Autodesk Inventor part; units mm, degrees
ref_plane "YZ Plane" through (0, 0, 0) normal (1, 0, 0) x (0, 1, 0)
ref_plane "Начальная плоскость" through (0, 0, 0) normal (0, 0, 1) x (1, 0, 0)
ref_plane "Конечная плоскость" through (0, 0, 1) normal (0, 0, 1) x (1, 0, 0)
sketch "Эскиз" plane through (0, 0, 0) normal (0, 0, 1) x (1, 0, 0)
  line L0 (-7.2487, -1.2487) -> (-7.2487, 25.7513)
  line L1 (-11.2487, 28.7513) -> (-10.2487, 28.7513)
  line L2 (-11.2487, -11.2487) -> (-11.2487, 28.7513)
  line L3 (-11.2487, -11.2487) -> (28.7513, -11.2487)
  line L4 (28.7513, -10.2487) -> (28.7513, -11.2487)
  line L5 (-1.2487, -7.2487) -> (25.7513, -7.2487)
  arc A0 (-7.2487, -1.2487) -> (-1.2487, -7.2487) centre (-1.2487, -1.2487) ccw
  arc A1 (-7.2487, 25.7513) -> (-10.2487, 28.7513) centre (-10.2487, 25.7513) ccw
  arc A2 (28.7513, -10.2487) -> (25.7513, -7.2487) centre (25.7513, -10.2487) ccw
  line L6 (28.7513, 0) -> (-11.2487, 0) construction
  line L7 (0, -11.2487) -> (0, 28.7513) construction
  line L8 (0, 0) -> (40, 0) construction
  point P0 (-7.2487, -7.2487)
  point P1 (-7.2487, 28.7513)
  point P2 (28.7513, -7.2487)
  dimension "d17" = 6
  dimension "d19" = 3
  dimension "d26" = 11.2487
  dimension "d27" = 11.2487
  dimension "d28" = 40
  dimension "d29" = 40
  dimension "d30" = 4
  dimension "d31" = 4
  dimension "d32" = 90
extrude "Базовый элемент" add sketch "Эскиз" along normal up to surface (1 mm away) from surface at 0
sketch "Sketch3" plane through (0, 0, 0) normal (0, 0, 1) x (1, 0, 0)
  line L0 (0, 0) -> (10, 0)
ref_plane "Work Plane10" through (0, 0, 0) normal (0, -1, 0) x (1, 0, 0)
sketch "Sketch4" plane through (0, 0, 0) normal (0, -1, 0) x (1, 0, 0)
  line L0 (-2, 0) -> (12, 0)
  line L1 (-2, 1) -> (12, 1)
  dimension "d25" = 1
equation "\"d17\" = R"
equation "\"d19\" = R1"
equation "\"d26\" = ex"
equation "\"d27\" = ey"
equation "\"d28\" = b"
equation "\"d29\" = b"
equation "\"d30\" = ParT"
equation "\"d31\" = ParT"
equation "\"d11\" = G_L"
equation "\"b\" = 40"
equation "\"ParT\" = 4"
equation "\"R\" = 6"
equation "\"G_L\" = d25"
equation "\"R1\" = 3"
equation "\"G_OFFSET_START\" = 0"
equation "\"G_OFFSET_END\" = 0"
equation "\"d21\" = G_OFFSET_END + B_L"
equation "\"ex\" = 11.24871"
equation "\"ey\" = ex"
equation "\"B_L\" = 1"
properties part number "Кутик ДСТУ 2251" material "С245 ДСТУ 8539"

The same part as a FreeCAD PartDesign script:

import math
import FreeCAD as App
import Part
import Sketcher

doc = App.newDocument("Part")
params = doc.addObject("Spreadsheet::Sheet", "Params")
for row, (alias, value) in enumerate([
    ("sketch1_radius", "6 mm"),
    ("sketch1_radius2", "3 mm"),
    ("sketch1_width", "40 mm"),
    ("pad1_length", "1 mm"),
], start=1):
    params.set(f"A{row}", alias)
    params.set(f"B{row}", "=" + value)
    params.setAlias(f"B{row}", alias)

body = doc.addObject("PartDesign::Body", "Body")

# Sketch on XY plane
sketch1 = body.newObject("Sketcher::SketchObject", "Sketch")
sketch1.AttachmentSupport = (doc.getObject("XY_Plane"), [""])
sketch1.MapMode = "FlatFace"
sketch1.addGeometry(Part.ArcOfCircle(Part.Circle(App.Vector(-1.2487, -1.2487, 0), App.Vector(0, 0, 1), 6), math.radians(180), math.radians(270)), False)
sketch1.addGeometry(Part.LineSegment(App.Vector(-7.2487, -1.2487, 0), App.Vector(-7.2487, 25.7513, 0)), False)
sketch1.addGeometry(Part.ArcOfCircle(Part.Circle(App.Vector(-10.2487, 25.7513, 0), App.Vector(0, 0, 1), 3), math.radians(0), math.radians(90)), False)
sketch1.addGeometry(Part.LineSegment(App.Vector(-10.2487, 28.7513, 0), App.Vector(-11.2487, 28.7513, 0)), False)
sketch1.addGeometry(Part.LineSegment(App.Vector(-11.2487, 28.7513, 0), App.Vector(-11.2487, -11.2487, 0)), False)
sketch1.addGeometry(Part.LineSegment(App.Vector(-11.2487, -11.2487, 0), App.Vector(28.7513, -11.2487, 0)), False)
sketch1.addGeometry(Part.LineSegment(App.Vector(28.7513, -11.2487, 0), App.Vector(28.7513, -10.2487, 0)), False)
sketch1.addGeometry(Part.ArcOfCircle(Part.Circle(App.Vector(25.7513, -10.2487, 0), App.Vector(0, 0, 1), 3), math.radians(0), math.radians(90)), False)
sketch1.addGeometry(Part.LineSegment(App.Vector(25.7513, -7.2487, 0), App.Vector(-1.2487, -7.2487, 0)), False)
sketch1.addConstraint(Sketcher.Constraint("Tangent", 0, 1, 1, 1))
sketch1.addConstraint(Sketcher.Constraint("Tangent", 1, 2, 2, 1))
sketch1.addConstraint(Sketcher.Constraint("Tangent", 2, 2, 3, 1))
sketch1.addConstraint(Sketcher.Constraint("Coincident", 3, 2, 4, 1))
sketch1.addConstraint(Sketcher.Constraint("Coincident", 4, 2, 5, 1))
sketch1.addConstraint(Sketcher.Constraint("Coincident", 5, 2, 6, 1))
sketch1.addConstraint(Sketcher.Constraint("Tangent", 6, 2, 7, 1))
sketch1.addConstraint(Sketcher.Constraint("Tangent", 7, 2, 8, 1))
sketch1.addConstraint(Sketcher.Constraint("Tangent", 8, 2, 0, 2))
sketch1.addConstraint(Sketcher.Constraint("Vertical", 1))
sketch1.addConstraint(Sketcher.Constraint("Horizontal", 3))
sketch1.addConstraint(Sketcher.Constraint("Vertical", 4))
sketch1.addConstraint(Sketcher.Constraint("Horizontal", 5))
sketch1.addConstraint(Sketcher.Constraint("Vertical", 6))
sketch1.addConstraint(Sketcher.Constraint("Horizontal", 8))
sketch1.addConstraint(Sketcher.Constraint("Equal", 2, 7))
sketch1.addConstraint(Sketcher.Constraint("Equal", 8, 1))
sketch1.addConstraint(Sketcher.Constraint("Equal", 5, 4))
sketch1.addConstraint(Sketcher.Constraint("Radius", 0, 6.0))
sketch1.addConstraint(Sketcher.Constraint("Radius", 2, 3.0))
sketch1.addConstraint(Sketcher.Constraint("DistanceX", 5, 1, 5, 2, 40.0))
sketch1.addConstraint(Sketcher.Constraint("DistanceX", 3, 2, 1, 2, 4.0))
sketch1.addConstraint(Sketcher.Constraint("DistanceX", 3, 2, -1, 1, 11.2487))
sketch1.addConstraint(Sketcher.Constraint("DistanceY", 4, 2, -1, 1, 11.2487))
sketch1.setExpression("Constraints[18]", "Params.sketch1_radius")
sketch1.setExpression("Constraints[19]", "Params.sketch1_radius2")
sketch1.setExpression("Constraints[20]", "Params.sketch1_width")
pad1 = body.newObject("PartDesign::Pad", "Pad")
pad1.Profile = sketch1
pad1.setExpression("Length", "Params.pad1_length")

doc.recompute()
